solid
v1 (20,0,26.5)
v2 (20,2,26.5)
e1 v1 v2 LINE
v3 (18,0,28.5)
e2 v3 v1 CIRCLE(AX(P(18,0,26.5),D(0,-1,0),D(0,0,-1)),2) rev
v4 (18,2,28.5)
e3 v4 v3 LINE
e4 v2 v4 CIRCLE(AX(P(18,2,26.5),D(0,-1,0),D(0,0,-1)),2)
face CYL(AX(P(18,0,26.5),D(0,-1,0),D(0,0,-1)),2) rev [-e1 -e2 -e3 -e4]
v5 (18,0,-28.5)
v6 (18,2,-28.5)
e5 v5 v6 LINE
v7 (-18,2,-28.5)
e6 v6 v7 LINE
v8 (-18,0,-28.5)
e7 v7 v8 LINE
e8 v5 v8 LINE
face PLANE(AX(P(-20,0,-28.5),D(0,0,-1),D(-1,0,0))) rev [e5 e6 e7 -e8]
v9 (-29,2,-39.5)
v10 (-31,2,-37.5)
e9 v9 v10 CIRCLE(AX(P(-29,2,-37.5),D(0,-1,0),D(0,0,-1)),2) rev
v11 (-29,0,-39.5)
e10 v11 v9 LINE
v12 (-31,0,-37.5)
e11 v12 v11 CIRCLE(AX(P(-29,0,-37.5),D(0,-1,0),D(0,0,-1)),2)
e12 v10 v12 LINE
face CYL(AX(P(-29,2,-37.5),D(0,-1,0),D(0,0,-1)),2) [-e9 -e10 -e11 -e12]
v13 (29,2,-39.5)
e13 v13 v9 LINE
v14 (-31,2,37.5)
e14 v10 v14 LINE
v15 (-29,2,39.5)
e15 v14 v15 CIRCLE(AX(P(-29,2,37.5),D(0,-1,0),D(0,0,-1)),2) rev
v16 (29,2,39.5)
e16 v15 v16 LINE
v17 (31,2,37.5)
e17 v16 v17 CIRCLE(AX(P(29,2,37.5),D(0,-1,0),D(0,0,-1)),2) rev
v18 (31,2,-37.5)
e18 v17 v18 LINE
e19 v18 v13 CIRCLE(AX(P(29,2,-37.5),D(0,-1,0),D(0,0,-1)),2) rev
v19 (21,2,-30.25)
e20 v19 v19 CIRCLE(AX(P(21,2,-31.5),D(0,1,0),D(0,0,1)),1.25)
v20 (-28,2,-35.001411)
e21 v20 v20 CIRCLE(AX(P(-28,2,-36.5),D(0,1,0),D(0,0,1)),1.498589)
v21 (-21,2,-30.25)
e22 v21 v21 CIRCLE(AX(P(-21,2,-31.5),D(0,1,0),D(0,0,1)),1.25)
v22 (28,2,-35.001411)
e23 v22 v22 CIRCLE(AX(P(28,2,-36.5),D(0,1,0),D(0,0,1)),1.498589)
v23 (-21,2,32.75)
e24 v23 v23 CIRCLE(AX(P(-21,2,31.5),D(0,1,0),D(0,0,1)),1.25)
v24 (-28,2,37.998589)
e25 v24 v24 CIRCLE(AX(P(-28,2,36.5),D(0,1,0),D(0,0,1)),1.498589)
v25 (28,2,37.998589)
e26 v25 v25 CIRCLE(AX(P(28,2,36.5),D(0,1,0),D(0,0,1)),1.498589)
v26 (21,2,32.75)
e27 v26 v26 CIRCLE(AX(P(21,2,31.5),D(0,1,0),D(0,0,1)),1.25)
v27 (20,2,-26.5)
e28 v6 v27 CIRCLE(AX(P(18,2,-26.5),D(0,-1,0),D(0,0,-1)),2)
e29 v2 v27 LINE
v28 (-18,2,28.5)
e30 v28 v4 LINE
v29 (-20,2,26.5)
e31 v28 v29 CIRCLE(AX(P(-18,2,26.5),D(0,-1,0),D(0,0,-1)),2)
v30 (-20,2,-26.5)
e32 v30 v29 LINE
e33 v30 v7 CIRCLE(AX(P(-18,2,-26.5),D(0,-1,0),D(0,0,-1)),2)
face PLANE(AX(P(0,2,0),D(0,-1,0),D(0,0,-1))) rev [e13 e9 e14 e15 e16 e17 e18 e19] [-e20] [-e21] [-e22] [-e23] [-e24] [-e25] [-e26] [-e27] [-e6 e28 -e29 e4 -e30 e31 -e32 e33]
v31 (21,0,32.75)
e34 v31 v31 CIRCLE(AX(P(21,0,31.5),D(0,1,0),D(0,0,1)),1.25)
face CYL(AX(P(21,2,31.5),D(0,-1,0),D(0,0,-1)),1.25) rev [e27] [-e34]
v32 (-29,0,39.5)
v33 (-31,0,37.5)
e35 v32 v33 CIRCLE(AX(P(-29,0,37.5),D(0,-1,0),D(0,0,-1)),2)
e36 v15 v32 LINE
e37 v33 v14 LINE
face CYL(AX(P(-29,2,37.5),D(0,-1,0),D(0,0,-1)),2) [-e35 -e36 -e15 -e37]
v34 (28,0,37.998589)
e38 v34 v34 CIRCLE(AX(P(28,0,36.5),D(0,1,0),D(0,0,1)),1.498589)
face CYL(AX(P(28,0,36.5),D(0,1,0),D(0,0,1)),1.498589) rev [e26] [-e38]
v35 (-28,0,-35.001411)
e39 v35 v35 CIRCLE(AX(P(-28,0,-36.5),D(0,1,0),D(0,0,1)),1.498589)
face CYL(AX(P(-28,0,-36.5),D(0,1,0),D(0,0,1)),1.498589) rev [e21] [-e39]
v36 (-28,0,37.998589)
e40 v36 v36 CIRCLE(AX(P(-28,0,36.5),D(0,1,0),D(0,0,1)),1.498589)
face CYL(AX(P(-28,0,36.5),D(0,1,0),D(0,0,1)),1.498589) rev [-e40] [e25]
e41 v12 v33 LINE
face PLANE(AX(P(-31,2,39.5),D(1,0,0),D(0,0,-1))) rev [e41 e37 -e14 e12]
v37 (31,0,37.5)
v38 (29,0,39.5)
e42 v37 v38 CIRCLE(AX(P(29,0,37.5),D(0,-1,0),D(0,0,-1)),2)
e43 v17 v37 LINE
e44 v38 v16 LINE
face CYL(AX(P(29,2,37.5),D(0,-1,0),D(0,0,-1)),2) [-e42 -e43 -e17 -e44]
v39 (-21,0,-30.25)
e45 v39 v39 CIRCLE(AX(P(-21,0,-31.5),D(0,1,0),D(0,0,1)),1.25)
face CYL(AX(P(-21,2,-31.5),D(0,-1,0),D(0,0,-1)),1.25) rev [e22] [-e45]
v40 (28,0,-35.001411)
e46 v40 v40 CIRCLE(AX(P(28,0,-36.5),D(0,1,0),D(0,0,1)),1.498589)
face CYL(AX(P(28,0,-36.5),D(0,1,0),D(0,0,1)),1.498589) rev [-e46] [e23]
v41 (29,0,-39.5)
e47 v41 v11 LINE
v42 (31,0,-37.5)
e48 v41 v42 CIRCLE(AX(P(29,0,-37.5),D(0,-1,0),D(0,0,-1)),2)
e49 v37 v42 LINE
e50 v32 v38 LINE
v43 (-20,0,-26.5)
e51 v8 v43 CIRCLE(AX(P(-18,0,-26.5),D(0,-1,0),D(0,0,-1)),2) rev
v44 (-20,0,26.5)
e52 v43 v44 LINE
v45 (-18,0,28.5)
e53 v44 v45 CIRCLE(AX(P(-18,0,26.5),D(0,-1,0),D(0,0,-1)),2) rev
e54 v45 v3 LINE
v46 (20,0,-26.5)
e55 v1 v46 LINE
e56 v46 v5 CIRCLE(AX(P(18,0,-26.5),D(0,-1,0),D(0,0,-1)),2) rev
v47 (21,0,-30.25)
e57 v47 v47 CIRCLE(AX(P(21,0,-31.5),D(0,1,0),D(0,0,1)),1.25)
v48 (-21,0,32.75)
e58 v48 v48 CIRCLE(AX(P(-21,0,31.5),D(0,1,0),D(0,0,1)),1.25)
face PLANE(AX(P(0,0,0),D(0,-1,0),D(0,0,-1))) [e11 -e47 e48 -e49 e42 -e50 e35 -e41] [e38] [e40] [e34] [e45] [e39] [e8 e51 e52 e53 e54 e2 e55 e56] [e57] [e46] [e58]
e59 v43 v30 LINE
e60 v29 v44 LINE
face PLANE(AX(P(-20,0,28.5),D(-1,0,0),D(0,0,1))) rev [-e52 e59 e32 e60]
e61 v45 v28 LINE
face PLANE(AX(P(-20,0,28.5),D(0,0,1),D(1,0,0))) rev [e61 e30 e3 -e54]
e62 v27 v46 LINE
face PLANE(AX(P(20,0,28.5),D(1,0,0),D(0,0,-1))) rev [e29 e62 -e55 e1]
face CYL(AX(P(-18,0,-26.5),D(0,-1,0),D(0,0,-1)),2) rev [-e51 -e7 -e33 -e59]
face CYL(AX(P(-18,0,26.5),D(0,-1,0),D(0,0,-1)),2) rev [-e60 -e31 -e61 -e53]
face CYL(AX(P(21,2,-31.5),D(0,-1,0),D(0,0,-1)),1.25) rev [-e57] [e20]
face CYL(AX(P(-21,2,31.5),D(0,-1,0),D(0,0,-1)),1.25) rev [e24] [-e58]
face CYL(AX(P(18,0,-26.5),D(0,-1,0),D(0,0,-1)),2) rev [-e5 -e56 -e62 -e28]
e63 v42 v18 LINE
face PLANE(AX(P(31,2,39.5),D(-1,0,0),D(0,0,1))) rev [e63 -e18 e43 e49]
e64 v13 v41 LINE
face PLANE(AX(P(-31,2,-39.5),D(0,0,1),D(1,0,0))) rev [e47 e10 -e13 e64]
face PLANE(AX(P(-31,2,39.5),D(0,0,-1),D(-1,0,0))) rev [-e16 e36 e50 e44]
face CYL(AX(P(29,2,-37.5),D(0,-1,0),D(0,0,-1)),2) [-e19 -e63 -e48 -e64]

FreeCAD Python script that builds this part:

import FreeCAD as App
import Part
import Sketcher


def edges_at(feature, points):
    """Names of the edges that pass closest to the given points."""
    edges = feature.Shape.Edges
    near = lambda p: min(range(len(edges)), key=lambda i: edges[i].distToShape(Part.Vertex(*p))[0])
    return sorted({f"Edge{near(p) + 1}" for p in points})

doc = App.newDocument("Part")
body = doc.addObject("PartDesign::Body", "Body")

# Sketch on XZ plane
sketch1 = doc.addObject("Sketcher::SketchObject", "Sketch")
body.addObject(sketch1)
sketch1.AttachmentSupport = (doc.XZ_Plane, [""])
sketch1.MapMode = "FlatFace"
sketch1.addGeometry(Part.LineSegment(App.Vector(-31, -39.5, 0), App.Vector(-31, 39.5, 0)), False)
sketch1.addGeometry(Part.LineSegment(App.Vector(-31, 39.5, 0), App.Vector(31, 39.5, 0)), False)
sketch1.addGeometry(Part.LineSegment(App.Vector(31, 39.5, 0), App.Vector(31, -39.5, 0)), False)
sketch1.addGeometry(Part.LineSegment(App.Vector(31, -39.5, 0), App.Vector(-31, -39.5, 0)), False)
sketch1.addGeometry(Part.Circle(App.Vector(-21, 31.5, 0), App.Vector(0, 0, 1), 1.2), False)
sketch1.addGeometry(Part.Circle(App.Vector(21, 31.5, 0), App.Vector(0, 0, 1), 1.2), False)
sketch1.addGeometry(Part.Circle(App.Vector(-21, -31.5, 0), App.Vector(0, 0, 1), 1.2), False)
sketch1.addGeometry(Part.Circle(App.Vector(21, -31.5, 0), App.Vector(0, 0, 1), 1.2), False)
sketch1.addConstraint(Sketcher.Constraint("Coincident", 0, 2, 1, 1))
sketch1.addConstraint(Sketcher.Constraint("Coincident", 1, 2, 2, 1))
sketch1.addConstraint(Sketcher.Constraint("Coincident", 2, 2, 3, 1))
sketch1.addConstraint(Sketcher.Constraint("Coincident", 3, 2, 0, 1))
sketch1.addConstraint(Sketcher.Constraint("Vertical", 0))
sketch1.addConstraint(Sketcher.Constraint("Horizontal", 1))
sketch1.addConstraint(Sketcher.Constraint("Vertical", 2))
sketch1.addConstraint(Sketcher.Constraint("Horizontal", 3))
sketch1.addConstraint(Sketcher.Constraint("Equal", 4, 5))
sketch1.addConstraint(Sketcher.Constraint("Equal", 5, 6))
sketch1.addConstraint(Sketcher.Constraint("Equal", 6, 7))
sketch1.addConstraint(Sketcher.Constraint("Symmetric", 5, 3, 6, 3, -1, 1))
sketch1.addConstraint(Sketcher.Constraint("Symmetric", 4, 3, 7, 3, -1, 1))
sketch1.addConstraint(Sketcher.Constraint("Symmetric", 0, 2, 2, 2, -1, 1))
sketch1.addConstraint(Sketcher.Constraint("Symmetric", 4, 3, 5, 3, -2))
sketch1.addConstraint(Sketcher.Constraint("Diameter", 4, 2.5))
sketch1.addConstraint(Sketcher.Constraint("DistanceX", 1, 1, 1, 2, 62.0))
sketch1.addConstraint(Sketcher.Constraint("DistanceY", 0, 1, 0, 2, 79.0))
sketch1.addConstraint(Sketcher.Constraint("DistanceX", 4, 3, -1, 1, 21.0))
sketch1.addConstraint(Sketcher.Constraint("DistanceY", 6, 3, 4, 3, 63.0))
pad1 = doc.addObject("PartDesign::Pad", "Pad")
body.addObject(pad1)
pad1.Profile = sketch1
pad1.Length = 2
pad1.Reversed = True

# Sketch on XZ plane
sketch2 = doc.addObject("Sketcher::SketchObject", "Sketch001")
body.addObject(sketch2)
sketch2.AttachmentSupport = (doc.XZ_Plane, [""])
sketch2.MapMode = "FlatFace"
sketch2.AttachmentOffset = App.Placement(App.Vector(0, 0, -2), App.Rotation())
sketch2.addGeometry(Part.Circle(App.Vector(28, -36.5, 0), App.Vector(0, 0, 1), 1.5), False)
sketch2.addGeometry(Part.Circle(App.Vector(-28, -36.5, 0), App.Vector(0, 0, 1), 1.5), False)
sketch2.addGeometry(Part.Circle(App.Vector(-28, 36.5, 0), App.Vector(0, 0, 1), 1.5), False)
sketch2.addGeometry(Part.Circle(App.Vector(28, 36.5, 0), App.Vector(0, 0, 1), 1.5), False)
sketch2.addConstraint(Sketcher.Constraint("Equal", 0, 1))
sketch2.addConstraint(Sketcher.Constraint("Equal", 1, 2))
sketch2.addConstraint(Sketcher.Constraint("Equal", 2, 3))
sketch2.addConstraint(Sketcher.Constraint("Symmetric", 0, 3, 2, 3, -1, 1))
sketch2.addConstraint(Sketcher.Constraint("Symmetric", 1, 3, 3, 3, -1, 1))
sketch2.addConstraint(Sketcher.Constraint("Symmetric", 0, 3, 1, 3, -2))
sketch2.addConstraint(Sketcher.Constraint("DistanceX", -1, 1, 0, 3, 28.0))
sketch2.addConstraint(Sketcher.Constraint("DistanceY", 1, 3, 2, 3, 73.0))
sketch2.addConstraint(Sketcher.Constraint("Diameter", 0, 2.997178))
pocket1 = doc.addObject("PartDesign::Pocket", "Pocket")
body.addObject(pocket1)
pocket1.Profile = sketch2
pocket1.Length = 2
pocket1.Reversed = True

# Sketch on XZ plane
sketch3 = doc.addObject("Sketcher::SketchObject", "Sketch002")
body.addObject(sketch3)
sketch3.AttachmentSupport = (doc.XZ_Plane, [""])
sketch3.MapMode = "FlatFace"
sketch3.AttachmentOffset = App.Placement(App.Vector(0, 0, -2), App.Rotation())
sketch3.addGeometry(Part.LineSegment(App.Vector(-20, -28, 0), App.Vector(-20, 28, 0)), False)
sketch3.addGeometry(Part.LineSegment(App.Vector(-20, 28, 0), App.Vector(20, 28, 0)), False)
sketch3.addGeometry(Part.LineSegment(App.Vector(20, 28, 0), App.Vector(20, -28, 0)), False)
sketch3.addGeometry(Part.LineSegment(App.Vector(20, -28, 0), App.Vector(-20, -28, 0)), False)
sketch3.addConstraint(Sketcher.Constraint("Coincident", 0, 2, 1, 1))
sketch3.addConstraint(Sketcher.Constraint("Coincident", 1, 2, 2, 1))
sketch3.addConstraint(Sketcher.Constraint("Coincident", 2, 2, 3, 1))
sketch3.addConstraint(Sketcher.Constraint("Coincident", 3, 2, 0, 1))
sketch3.addConstraint(Sketcher.Constraint("Vertical", 0))
sketch3.addConstraint(Sketcher.Constraint("Horizontal", 1))
sketch3.addConstraint(Sketcher.Constraint("Vertical", 2))
sketch3.addConstraint(Sketcher.Constraint("Horizontal", 3))
sketch3.addConstraint(Sketcher.Constraint("Symmetric", 0, 2, 2, 2, -1, 1))
sketch3.addConstraint(Sketcher.Constraint("DistanceX", 1, 1, 1, 2, 40.0))
sketch3.addConstraint(Sketcher.Constraint("DistanceY", 0, 1, 0, 2, 57.0))
pocket2 = doc.addObject("PartDesign::Pocket", "Pocket001")
body.addObject(pocket2)
pocket2.Profile = sketch3
pocket2.Length = 2
pocket2.Reversed = True
doc.recompute()

fillet = doc.addObject("PartDesign::Fillet", "Fillet")
body.addObject(fillet)
fillet.Base = (pocket2, edges_at(pocket2, [
    (20, 1, -28.5),
    (20, 1, 28.5),
    (-20, 1, 28.5),
    (-20, 1, -28.5),
    (31, 1, 39.5),
    (-31, 1, 39.5),
    (-31, 1, -39.5),
    (31, 1, -39.5),
]))
fillet.Radius = 2

doc.recompute()
